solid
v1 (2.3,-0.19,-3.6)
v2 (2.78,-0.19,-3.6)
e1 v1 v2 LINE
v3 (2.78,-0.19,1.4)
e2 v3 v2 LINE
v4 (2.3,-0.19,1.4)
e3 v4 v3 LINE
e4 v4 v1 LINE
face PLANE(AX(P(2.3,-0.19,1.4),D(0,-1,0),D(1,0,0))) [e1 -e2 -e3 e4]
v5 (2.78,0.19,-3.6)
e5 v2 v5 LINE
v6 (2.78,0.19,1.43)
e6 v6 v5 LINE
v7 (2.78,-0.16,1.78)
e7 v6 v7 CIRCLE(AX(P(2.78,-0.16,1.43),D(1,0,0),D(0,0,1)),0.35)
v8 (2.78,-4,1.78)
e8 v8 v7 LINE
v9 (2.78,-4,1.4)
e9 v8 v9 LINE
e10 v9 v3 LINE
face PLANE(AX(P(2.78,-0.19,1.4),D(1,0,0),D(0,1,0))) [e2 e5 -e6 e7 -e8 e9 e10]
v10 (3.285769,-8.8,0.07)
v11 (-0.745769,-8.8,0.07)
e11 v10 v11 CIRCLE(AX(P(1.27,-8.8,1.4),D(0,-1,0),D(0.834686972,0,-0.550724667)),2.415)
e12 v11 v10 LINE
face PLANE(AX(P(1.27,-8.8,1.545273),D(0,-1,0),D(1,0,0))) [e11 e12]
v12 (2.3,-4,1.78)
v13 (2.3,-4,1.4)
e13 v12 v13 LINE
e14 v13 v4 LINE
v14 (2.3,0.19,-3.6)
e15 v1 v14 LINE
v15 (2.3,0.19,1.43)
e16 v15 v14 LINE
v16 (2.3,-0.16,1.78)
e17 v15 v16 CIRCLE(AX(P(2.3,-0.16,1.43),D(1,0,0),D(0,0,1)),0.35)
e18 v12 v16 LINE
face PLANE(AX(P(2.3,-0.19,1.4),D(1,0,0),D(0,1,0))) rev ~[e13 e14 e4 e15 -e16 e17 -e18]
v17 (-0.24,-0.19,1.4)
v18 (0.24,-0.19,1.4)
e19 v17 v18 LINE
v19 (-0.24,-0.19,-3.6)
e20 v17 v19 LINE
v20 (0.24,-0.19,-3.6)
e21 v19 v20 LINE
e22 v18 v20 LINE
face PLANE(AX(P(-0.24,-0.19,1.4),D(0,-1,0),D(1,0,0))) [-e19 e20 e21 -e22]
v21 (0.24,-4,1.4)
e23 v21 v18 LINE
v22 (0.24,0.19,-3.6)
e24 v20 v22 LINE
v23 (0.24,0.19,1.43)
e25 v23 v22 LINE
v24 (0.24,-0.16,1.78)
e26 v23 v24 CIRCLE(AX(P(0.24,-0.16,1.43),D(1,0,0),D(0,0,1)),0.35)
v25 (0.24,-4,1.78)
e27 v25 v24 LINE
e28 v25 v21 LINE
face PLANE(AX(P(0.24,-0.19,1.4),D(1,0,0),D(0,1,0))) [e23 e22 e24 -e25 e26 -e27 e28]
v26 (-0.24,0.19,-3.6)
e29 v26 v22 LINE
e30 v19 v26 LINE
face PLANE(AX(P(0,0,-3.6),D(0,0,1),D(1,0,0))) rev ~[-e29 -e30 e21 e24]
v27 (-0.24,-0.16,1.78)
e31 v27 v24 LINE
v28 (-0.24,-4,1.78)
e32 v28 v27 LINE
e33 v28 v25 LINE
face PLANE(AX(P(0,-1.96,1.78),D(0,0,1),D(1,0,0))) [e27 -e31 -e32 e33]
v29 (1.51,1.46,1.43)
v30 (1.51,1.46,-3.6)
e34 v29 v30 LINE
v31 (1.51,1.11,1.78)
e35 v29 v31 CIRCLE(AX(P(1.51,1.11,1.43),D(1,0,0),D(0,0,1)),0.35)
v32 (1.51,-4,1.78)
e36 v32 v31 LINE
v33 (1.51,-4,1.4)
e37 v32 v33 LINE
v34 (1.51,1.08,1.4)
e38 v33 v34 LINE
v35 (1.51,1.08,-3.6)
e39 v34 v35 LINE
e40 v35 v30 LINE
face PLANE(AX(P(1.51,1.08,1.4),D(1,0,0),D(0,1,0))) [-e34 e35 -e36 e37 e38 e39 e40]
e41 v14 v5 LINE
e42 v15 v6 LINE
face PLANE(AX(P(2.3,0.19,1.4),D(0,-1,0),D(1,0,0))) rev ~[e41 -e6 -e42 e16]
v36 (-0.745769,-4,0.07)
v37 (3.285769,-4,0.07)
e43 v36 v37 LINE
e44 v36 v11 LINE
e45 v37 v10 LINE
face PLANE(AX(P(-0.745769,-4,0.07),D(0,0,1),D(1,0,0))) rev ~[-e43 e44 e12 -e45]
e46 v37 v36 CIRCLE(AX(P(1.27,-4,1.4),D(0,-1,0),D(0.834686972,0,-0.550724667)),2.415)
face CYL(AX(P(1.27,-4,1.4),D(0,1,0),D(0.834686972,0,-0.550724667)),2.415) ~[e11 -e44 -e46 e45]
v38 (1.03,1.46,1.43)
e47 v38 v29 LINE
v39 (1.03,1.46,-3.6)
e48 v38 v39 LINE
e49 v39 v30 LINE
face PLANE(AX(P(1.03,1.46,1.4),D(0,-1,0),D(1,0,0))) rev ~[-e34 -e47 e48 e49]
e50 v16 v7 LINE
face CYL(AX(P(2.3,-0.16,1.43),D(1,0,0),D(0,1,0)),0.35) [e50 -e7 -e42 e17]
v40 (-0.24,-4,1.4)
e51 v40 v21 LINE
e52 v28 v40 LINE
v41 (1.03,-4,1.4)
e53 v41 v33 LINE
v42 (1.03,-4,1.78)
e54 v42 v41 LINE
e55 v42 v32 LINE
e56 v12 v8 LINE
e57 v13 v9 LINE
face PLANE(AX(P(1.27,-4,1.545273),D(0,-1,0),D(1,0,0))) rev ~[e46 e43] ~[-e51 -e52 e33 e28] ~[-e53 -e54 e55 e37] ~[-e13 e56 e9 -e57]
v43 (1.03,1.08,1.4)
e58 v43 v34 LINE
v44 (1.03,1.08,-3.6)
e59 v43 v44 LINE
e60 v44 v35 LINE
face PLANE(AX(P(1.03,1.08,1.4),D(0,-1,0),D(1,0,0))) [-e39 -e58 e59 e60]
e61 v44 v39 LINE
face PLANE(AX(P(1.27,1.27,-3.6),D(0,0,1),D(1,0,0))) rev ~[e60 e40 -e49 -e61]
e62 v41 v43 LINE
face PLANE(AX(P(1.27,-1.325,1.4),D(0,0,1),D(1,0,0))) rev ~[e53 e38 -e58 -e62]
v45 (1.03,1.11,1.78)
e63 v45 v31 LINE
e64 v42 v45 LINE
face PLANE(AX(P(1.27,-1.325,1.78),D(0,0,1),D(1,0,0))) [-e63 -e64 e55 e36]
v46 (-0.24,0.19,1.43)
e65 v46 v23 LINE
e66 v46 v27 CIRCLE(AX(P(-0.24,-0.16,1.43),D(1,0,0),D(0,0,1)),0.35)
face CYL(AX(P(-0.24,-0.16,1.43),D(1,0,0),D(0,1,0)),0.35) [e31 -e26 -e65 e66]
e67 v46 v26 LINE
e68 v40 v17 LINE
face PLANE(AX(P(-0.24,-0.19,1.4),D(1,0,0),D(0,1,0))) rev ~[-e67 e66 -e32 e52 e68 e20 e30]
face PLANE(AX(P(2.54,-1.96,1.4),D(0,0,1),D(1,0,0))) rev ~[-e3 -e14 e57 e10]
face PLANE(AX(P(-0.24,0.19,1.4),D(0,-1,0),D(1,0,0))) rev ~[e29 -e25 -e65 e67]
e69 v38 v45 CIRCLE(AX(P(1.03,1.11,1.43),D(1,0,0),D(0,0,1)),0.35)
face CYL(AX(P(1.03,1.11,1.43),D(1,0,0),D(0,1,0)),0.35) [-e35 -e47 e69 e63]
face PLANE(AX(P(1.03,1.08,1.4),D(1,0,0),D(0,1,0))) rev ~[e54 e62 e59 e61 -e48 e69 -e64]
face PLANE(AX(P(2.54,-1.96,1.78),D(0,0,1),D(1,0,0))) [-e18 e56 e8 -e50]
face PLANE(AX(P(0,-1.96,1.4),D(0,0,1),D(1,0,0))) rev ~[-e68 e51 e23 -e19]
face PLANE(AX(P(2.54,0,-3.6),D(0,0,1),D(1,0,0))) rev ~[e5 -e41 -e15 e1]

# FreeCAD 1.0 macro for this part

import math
import FreeCAD as App
import Part
import Sketcher


def edges_at(feature, points):
    """Names of the edges that pass closest to the given points."""
    edges = feature.Shape.Edges
    near = lambda p: min(range(len(edges)), key=lambda i: edges[i].distToShape(Part.Vertex(*p))[0])
    return sorted({f"Edge{near(p) + 1}" for p in points})

doc = App.newDocument("Part")
body = doc.addObject("PartDesign::Body", "Body")
body.AllowCompound = True

sketch1 = doc.addObject("Sketcher::SketchObject", "Sketch")
body.addObject(sketch1)
sketch1.AttachmentSupport = (doc.XY_Plane, [""])
sketch1.MapMode = "FlatFace"
sketch1.AttachmentOffset = App.Placement(App.Vector(0, 0, 1.4), App.Rotation())
sketch1.addGeometry(Part.LineSegment(App.Vector(-0.24, 0.19, 0), App.Vector(-0.24, -0.19, 0)), False)
sketch1.addGeometry(Part.LineSegment(App.Vector(-0.24, -0.19, 0), App.Vector(0.24, -0.19, 0)), False)
sketch1.addGeometry(Part.LineSegment(App.Vector(0.24, -0.19, 0), App.Vector(0.24, 0.19, 0)), False)
sketch1.addGeometry(Part.LineSegment(App.Vector(0.24, 0.19, 0), App.Vector(-0.24, 0.19, 0)), False)
sketch1.addGeometry(Part.LineSegment(App.Vector(1.03, 1.46, 0), App.Vector(1.03, 1.08, 0)), False)
sketch1.addGeometry(Part.LineSegment(App.Vector(1.03, 1.08, 0), App.Vector(1.51, 1.08, 0)), False)
sketch1.addGeometry(Part.LineSegment(App.Vector(1.51, 1.08, 0), App.Vector(1.51, 1.46, 0)), False)
sketch1.addGeometry(Part.LineSegment(App.Vector(1.51, 1.46, 0), App.Vector(1.03, 1.46, 0)), False)
sketch1.addGeometry(Part.LineSegment(App.Vector(2.3, 0.19, 0), App.Vector(2.3, -0.19, 0)), False)
sketch1.addGeometry(Part.LineSegment(App.Vector(2.3, -0.19, 0), App.Vector(2.78, -0.19, 0)), False)
sketch1.addGeometry(Part.LineSegment(App.Vector(2.78, -0.19, 0), App.Vector(2.78, 0.19, 0)), False)
sketch1.addGeometry(Part.LineSegment(App.Vector(2.78, 0.19, 0), App.Vector(2.3, 0.19, 0)), False)
sketch1.addConstraint(Sketcher.Constraint("Coincident", 0, 2, 1, 1))
sketch1.addConstraint(Sketcher.Constraint("Coincident", 1, 2, 2, 1))
sketch1.addConstraint(Sketcher.Constraint("Coincident", 2, 2, 3, 1))
sketch1.addConstraint(Sketcher.Constraint("Coincident", 3, 2, 0, 1))
sketch1.addConstraint(Sketcher.Constraint("Coincident", 4, 2, 5, 1))
sketch1.addConstraint(Sketcher.Constraint("Coincident", 5, 2, 6, 1))
sketch1.addConstraint(Sketcher.Constraint("Coincident", 6, 2, 7, 1))
sketch1.addConstraint(Sketcher.Constraint("Coincident", 7, 2, 4, 1))
sketch1.addConstraint(Sketcher.Constraint("Coincident", 8, 2, 9, 1))
sketch1.addConstraint(Sketcher.Constraint("Coincident", 9, 2, 10, 1))
sketch1.addConstraint(Sketcher.Constraint("Coincident", 10, 2, 11, 1))
sketch1.addConstraint(Sketcher.Constraint("Coincident", 11, 2, 8, 1))
sketch1.addConstraint(Sketcher.Constraint("Vertical", 0))
sketch1.addConstraint(Sketcher.Constraint("Horizontal", 1))
sketch1.addConstraint(Sketcher.Constraint("Vertical", 2))
sketch1.addConstraint(Sketcher.Constraint("Horizontal", 3))
sketch1.addConstraint(Sketcher.Constraint("Vertical", 4))
sketch1.addConstraint(Sketcher.Constraint("Horizontal", 5))
sketch1.addConstraint(Sketcher.Constraint("Vertical", 6))
sketch1.addConstraint(Sketcher.Constraint("Horizontal", 7))
sketch1.addConstraint(Sketcher.Constraint("Vertical", 8))
sketch1.addConstraint(Sketcher.Constraint("Horizontal", 9))
sketch1.addConstraint(Sketcher.Constraint("Vertical", 10))
sketch1.addConstraint(Sketcher.Constraint("Horizontal", 11))
sketch1.addConstraint(Sketcher.Constraint("Symmetric", 0, 2, 2, 2, -1, 1))
sketch1.addConstraint(Sketcher.Constraint("Horizontal", 1, 2, 8, 2))
sketch1.addConstraint(Sketcher.Constraint("Horizontal", 3, 2, 10, 2))
sketch1.addConstraint(Sketcher.Constraint("Equal", 3, 5))
sketch1.addConstraint(Sketcher.Constraint("Equal", 7, 9))
sketch1.addConstraint(Sketcher.Constraint("Equal", 2, 4))
sketch1.addConstraint(Sketcher.Constraint("DistanceX", 1, 1, 1, 2, 0.48))
sketch1.addConstraint(Sketcher.Constraint("DistanceY", 0, 2, 0, 1, 0.38))
sketch1.addConstraint(Sketcher.Constraint("DistanceX", -1, 1, 8, 2, 2.3))
sketch1.addConstraint(Sketcher.Constraint("DistanceX", -1, 1, 4, 2, 1.03))
sketch1.addConstraint(Sketcher.Constraint("DistanceY", -1, 1, 4, 2, 1.08))
pad1 = doc.addObject("PartDesign::Pad", "Pad")
body.addObject(pad1)
pad1.Profile = sketch1
pad1.Length = 5
pad1.Reversed = True
body2 = doc.addObject("PartDesign::Body", "Body001")

sketch2 = doc.addObject("Sketcher::SketchObject", "Sketch001")
body2.addObject(sketch2)
sketch2.AttachmentSupport = (doc.getObject("XZ_Plane001"), [""])
sketch2.MapMode = "FlatFace"
sketch2.AttachmentOffset = App.Placement(App.Vector(0, 0, 4), App.Rotation())
sketch2.addGeometry(Part.LineSegment(App.Vector(-0.7, 0.1, 0), App.Vector(3.3, 0.1, 0)), False)
sketch2.addGeometry(Part.ArcOfCircle(Part.Circle(App.Vector(1.3, 1.4, 0), App.Vector(0, 0, 1), 2.4), math.radians(-33), math.radians(213)), False)
sketch2.addConstraint(Sketcher.Constraint("Coincident", 0, 1, 1, 2))
sketch2.addConstraint(Sketcher.Constraint("Coincident", 1, 1, 0, 2))
sketch2.addConstraint(Sketcher.Constraint("Horizontal", 0))
sketch2.addConstraint(Sketcher.Constraint("Radius", 1, 2.415))
sketch2.addConstraint(Sketcher.Constraint("DistanceY", -1, 1, 1, 3, 1.4))
sketch2.addConstraint(Sketcher.Constraint("DistanceX", -1, 1, 1, 3, 1.27))
sketch2.addConstraint(Sketcher.Constraint("DistanceY", -1, 1, 0, 1, 0.07))
pad2 = doc.addObject("PartDesign::Pad", "Pad001")
body2.addObject(pad2)
pad2.Profile = sketch2
pad2.Length = 4.8
body3 = doc.addObject("PartDesign::Body", "Body002")
body3.AllowCompound = True

sketch3 = doc.addObject("Sketcher::SketchObject", "Sketch002")
body3.addObject(sketch3)
sketch3.AttachmentSupport = (doc.getObject("XY_Plane002"), [""])
sketch3.MapMode = "FlatFace"
sketch3.AttachmentOffset = App.Placement(App.Vector(0, 0, 1.4), App.Rotation())
sketch3.addGeometry(Part.LineSegment(App.Vector(2.3, 0.19, 0), App.Vector(2.3, -4.11, 0)), False)
sketch3.addGeometry(Part.LineSegment(App.Vector(2.3, -4.11, 0), App.Vector(2.78, -4.11, 0)), False)
sketch3.addGeometry(Part.LineSegment(App.Vector(2.78, -4.11, 0), App.Vector(2.78, 0.19, 0)), False)
sketch3.addGeometry(Part.LineSegment(App.Vector(2.78, 0.19, 0), App.Vector(2.3, 0.19, 0)), False)
sketch3.addGeometry(Part.LineSegment(App.Vector(1.03, 1.46, 0), App.Vector(1.03, -4.11, 0)), False)
sketch3.addGeometry(Part.LineSegment(App.Vector(1.03, -4.11, 0), App.Vector(1.51, -4.11, 0)), False)
sketch3.addGeometry(Part.LineSegment(App.Vector(1.51, -4.11, 0), App.Vector(1.51, 1.46, 0)), False)
sketch3.addGeometry(Part.LineSegment(App.Vector(1.51, 1.46, 0), App.Vector(1.03, 1.46, 0)), False)
sketch3.addGeometry(Part.LineSegment(App.Vector(-0.24, 0.19, 0), App.Vector(-0.24, -4.11, 0)), False)
sketch3.addGeometry(Part.LineSegment(App.Vector(-0.24, -4.11, 0), App.Vector(0.24, -4.11, 0)), False)
sketch3.addGeometry(Part.LineSegment(App.Vector(0.24, -4.11, 0), App.Vector(0.24, 0.19, 0)), False)
sketch3.addGeometry(Part.LineSegment(App.Vector(0.24, 0.19, 0), App.Vector(-0.24, 0.19, 0)), False)
sketch3.addConstraint(Sketcher.Constraint("Coincident", 0, 2, 1, 1))
sketch3.addConstraint(Sketcher.Constraint("Coincident", 1, 2, 2, 1))
sketch3.addConstraint(Sketcher.Constraint("Coincident", 2, 2, 3, 1))
sketch3.addConstraint(Sketcher.Constraint("Coincident", 3, 2, 0, 1))
sketch3.addConstraint(Sketcher.Constraint("Coincident", 4, 2, 5, 1))
sketch3.addConstraint(Sketcher.Constraint("Coincident", 5, 2, 6, 1))
sketch3.addConstraint(Sketcher.Constraint("Coincident", 6, 2, 7, 1))
sketch3.addConstraint(Sketcher.Constraint("Coincident", 7, 2, 4, 1))
sketch3.addConstraint(Sketcher.Constraint("Coincident", 8, 2, 9, 1))
sketch3.addConstraint(Sketcher.Constraint("Coincident", 9, 2, 10, 1))
sketch3.addConstraint(Sketcher.Constraint("Coincident", 10, 2, 11, 1))
sketch3.addConstraint(Sketcher.Constraint("Coincident", 11, 2, 8, 1))
sketch3.addConstraint(Sketcher.Constraint("Vertical", 0))
sketch3.addConstraint(Sketcher.Constraint("Horizontal", 1))
sketch3.addConstraint(Sketcher.Constraint("Vertical", 2))
sketch3.addConstraint(Sketcher.Constraint("Horizontal", 3))
sketch3.addConstraint(Sketcher.Constraint("Vertical", 4))
sketch3.addConstraint(Sketcher.Constraint("Horizontal", 5))
sketch3.addConstraint(Sketcher.Constraint("Vertical", 6))
sketch3.addConstraint(Sketcher.Constraint("Horizontal", 7))
sketch3.addConstraint(Sketcher.Constraint("Vertical", 8))
sketch3.addConstraint(Sketcher.Constraint("Horizontal", 9))
sketch3.addConstraint(Sketcher.Constraint("Vertical", 10))
sketch3.addConstraint(Sketcher.Constraint("Horizontal", 11))
sketch3.addConstraint(Sketcher.Constraint("Horizontal", 1, 2, 4, 2))
sketch3.addConstraint(Sketcher.Constraint("Horizontal", 5, 2, 8, 2))
sketch3.addConstraint(Sketcher.Constraint("Horizontal", 3, 2, 10, 2))
sketch3.addConstraint(Sketcher.Constraint("Equal", 3, 5))
sketch3.addConstraint(Sketcher.Constraint("Equal", 7, 9))
sketch3.addConstraint(Sketcher.Constraint("DistanceY", 0, 2, 0, 1, 4.3))
sketch3.addConstraint(Sketcher.Constraint("DistanceX", 1, 1, 1, 2, 0.48))
sketch3.addConstraint(Sketcher.Constraint("DistanceY", 4, 2, 4, 1, 5.57))
sketch3.addConstraint(Sketcher.Constraint("DistanceX", -1, 1, 0, 2, 2.3))
sketch3.addConstraint(Sketcher.Constraint("DistanceY", 0, 2, -1, 1, 4.11))
sketch3.addConstraint(Sketcher.Constraint("DistanceX", -1, 1, 4, 2, 1.03))
sketch3.addConstraint(Sketcher.Constraint("DistanceX", 8, 2, -1, 1, 0.24))
pad3 = doc.addObject("PartDesign::Pad", "Pad002")
body3.addObject(pad3)
pad3.Profile = sketch3
pad3.Length = 0.38
doc.recompute()

fillet = doc.addObject("PartDesign::Fillet", "Fillet")
body3.addObject(fillet)
fillet.Base = (pad3, edges_at(pad3, [(2.54, 0.19, 1.78), (0, 0.19, 1.78), (1.27, 1.46, 1.78)]))
fillet.Radius = 0.35
doc.recompute()

boolean = doc.addObject("PartDesign::Boolean", "Boolean")
body3.addObject(boolean)
boolean.Type = "Fuse"
boolean.addObjects([body])
doc.recompute()

boolean2 = doc.addObject("PartDesign::Boolean", "Boolean001")
body3.addObject(boolean2)
boolean2.Type = "Fuse"
boolean2.addObjects([body2])

doc.recompute()
